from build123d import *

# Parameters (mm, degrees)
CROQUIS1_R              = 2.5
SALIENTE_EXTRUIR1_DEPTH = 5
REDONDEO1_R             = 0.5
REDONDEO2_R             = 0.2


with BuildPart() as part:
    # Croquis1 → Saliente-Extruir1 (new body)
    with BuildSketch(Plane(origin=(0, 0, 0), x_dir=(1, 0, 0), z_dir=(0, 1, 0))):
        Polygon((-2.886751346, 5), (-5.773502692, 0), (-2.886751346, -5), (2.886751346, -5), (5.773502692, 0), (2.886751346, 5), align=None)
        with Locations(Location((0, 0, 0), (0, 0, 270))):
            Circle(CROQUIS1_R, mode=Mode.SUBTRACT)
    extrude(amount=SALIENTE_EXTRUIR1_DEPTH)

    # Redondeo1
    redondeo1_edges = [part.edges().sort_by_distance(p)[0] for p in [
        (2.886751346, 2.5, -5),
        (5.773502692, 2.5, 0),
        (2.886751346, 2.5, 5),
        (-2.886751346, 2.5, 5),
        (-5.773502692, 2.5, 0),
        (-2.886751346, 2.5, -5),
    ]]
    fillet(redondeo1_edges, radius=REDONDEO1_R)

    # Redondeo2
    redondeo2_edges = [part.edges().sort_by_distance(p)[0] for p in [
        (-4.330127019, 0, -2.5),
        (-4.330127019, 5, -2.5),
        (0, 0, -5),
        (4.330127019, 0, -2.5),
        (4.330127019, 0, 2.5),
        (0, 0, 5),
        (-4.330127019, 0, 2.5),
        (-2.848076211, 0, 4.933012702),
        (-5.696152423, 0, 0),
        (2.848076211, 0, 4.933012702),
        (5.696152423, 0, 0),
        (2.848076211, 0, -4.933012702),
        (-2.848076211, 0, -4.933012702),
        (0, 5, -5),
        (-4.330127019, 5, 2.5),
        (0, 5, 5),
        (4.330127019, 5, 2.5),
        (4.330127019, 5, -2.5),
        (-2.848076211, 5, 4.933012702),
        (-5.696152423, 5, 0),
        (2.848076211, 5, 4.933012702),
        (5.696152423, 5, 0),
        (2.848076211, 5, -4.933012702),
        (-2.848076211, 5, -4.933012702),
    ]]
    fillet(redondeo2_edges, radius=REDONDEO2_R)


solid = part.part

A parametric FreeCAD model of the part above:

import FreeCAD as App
import Part
import Sketcher
Q = App.Units.Quantity


def edges_at(feature, points):
    """Names of the edges that pass closest to the given points."""
    edges = feature.Shape.Edges
    near = lambda p: min(range(len(edges)), key=lambda i: edges[i].distToShape(Part.Vertex(*p))[0])
    return sorted({f"Edge{near(p) + 1}" for p in points})

doc = App.newDocument("Part")
params = doc.addObject("Spreadsheet::Sheet", "Params")
for row, (alias, value) in enumerate([
    ("sketch1_diameter", "5 mm"),
    ("pad1_length", "5 mm"),
    ("fillet_radius", "0.5 mm"),
    ("fillet2_radius", "0.2 mm"),
], start=1):
    params.set(f"A{row}", alias)
    params.set(f"B{row}", "=" + value)
    params.setAlias(f"B{row}", alias)

body = doc.addObject("PartDesign::Body", "Body")

# Sketch on XZ plane
sketch1 = body.newObject("Sketcher::SketchObject", "Sketch")
sketch1.AttachmentSupport = (doc.getObject("XZ_Plane"), [""])
sketch1.MapMode = "FlatFace"
sketch1.addGeometry([
    Part.LineSegment(App.Vector(-2.886751, -5, 0), App.Vector(-5.773503, 0, 0)),  # 0
    Part.LineSegment(App.Vector(-5.773503, 0, 0), App.Vector(-2.886751, 5, 0)),  # 1
    Part.LineSegment(App.Vector(-2.886751, 5, 0), App.Vector(2.886751, 5, 0)),  # 2
    Part.LineSegment(App.Vector(2.886751, 5, 0), App.Vector(5.773503, 0, 0)),  # 3
    Part.LineSegment(App.Vector(5.773503, 0, 0), App.Vector(2.886751, -5, 0)),  # 4
    Part.LineSegment(App.Vector(2.886751, -5, 0), App.Vector(-2.886751, -5, 0)),  # 5
    Part.Circle(App.Vector(0, 0, 0), App.Vector(0, 0, 1), 2.5),  # 6
], False)
sketch1.addConstraint([
    Sketcher.Constraint("Coincident", 0, 2, 1, 1),
    Sketcher.Constraint("Coincident", 1, 2, 2, 1),
    Sketcher.Constraint("Coincident", 2, 2, 3, 1),
    Sketcher.Constraint("Coincident", 3, 2, 4, 1),
    Sketcher.Constraint("Coincident", 4, 2, 5, 1),
    Sketcher.Constraint("Coincident", 5, 2, 0, 1),
    Sketcher.Constraint("Horizontal", 2),
    Sketcher.Constraint("Horizontal", 5),
    Sketcher.Constraint("Coincident", 6, 3, -1, 1),
    Sketcher.Constraint("Symmetric", 0, 2, 3, 2, -1, 1),
    Sketcher.Constraint("Symmetric", 1, 2, 4, 2, -1, 1),
    Sketcher.Constraint("PointOnObject", 0, 2, -1),
    Sketcher.Constraint("Parallel", 0, 3),
    Sketcher.Constraint("Vertical", 2, 2, 4, 2),
    Sketcher.Constraint("Diameter", 6, Q("5 mm")),
    Sketcher.Constraint("Angle", 0, Q("120 deg")),
    Sketcher.Constraint("DistanceY", -1, 1, 1, 2, Q("5 mm")),
    Sketcher.Constraint("DistanceX", 2, 1, 2, 2, Q("5.773503 mm")),
])
sketch1.setExpression("Constraints[14]", "Params.sketch1_diameter")
pad1 = body.newObject("PartDesign::Pad", "Pad")
pad1.Profile = sketch1
pad1.setExpression("Length", "Params.pad1_length")
pad1.Reversed = True
doc.recompute()

fillet = body.newObject("PartDesign::Fillet", "Fillet")
fillet.Base = (pad1, edges_at(pad1, [
    (2.887, 2.5, -5),
    (5.774, 2.5, 0),
    (2.887, 2.5, 5),
    (-2.887, 2.5, 5),
    (-5.774, 2.5, 0),
    (-2.887, 2.5, -5),
]))
fillet.setExpression("Radius", "Params.fillet_radius")
doc.recompute()

fillet2 = body.newObject("PartDesign::Fillet", "Fillet001")
fillet2.Base = (fillet, edges_at(fillet, [
    (-4.33, 0, -2.5),
    (-4.33, 5, -2.5),
    (0, 0, -5),
    (4.33, 0, -2.5),
    (4.33, 0, 2.5),
    (0, 0, 5),
    (-4.33, 0, 2.5),
    (-2.848, 0, 4.933),
    (-5.696, 0, 0),
    (2.848, 0, 4.933),
    (5.696, 0, 0),
    (2.848, 0, -4.933),
    (-2.848, 0, -4.933),
    (0, 5, -5),
    (-4.33, 5, 2.5),
    (0, 5, 5),
    (4.33, 5, 2.5),
    (4.33, 5, -2.5),
    (-2.848, 5, 4.933),
    (-5.696, 5, 0),
    (2.848, 5, 4.933),
    (5.696, 5, 0),
    (2.848, 5, -4.933),
    (-2.848, 5, -4.933),
]))
fillet2.setExpression("Radius", "Params.fillet2_radius")

doc.recompute()
